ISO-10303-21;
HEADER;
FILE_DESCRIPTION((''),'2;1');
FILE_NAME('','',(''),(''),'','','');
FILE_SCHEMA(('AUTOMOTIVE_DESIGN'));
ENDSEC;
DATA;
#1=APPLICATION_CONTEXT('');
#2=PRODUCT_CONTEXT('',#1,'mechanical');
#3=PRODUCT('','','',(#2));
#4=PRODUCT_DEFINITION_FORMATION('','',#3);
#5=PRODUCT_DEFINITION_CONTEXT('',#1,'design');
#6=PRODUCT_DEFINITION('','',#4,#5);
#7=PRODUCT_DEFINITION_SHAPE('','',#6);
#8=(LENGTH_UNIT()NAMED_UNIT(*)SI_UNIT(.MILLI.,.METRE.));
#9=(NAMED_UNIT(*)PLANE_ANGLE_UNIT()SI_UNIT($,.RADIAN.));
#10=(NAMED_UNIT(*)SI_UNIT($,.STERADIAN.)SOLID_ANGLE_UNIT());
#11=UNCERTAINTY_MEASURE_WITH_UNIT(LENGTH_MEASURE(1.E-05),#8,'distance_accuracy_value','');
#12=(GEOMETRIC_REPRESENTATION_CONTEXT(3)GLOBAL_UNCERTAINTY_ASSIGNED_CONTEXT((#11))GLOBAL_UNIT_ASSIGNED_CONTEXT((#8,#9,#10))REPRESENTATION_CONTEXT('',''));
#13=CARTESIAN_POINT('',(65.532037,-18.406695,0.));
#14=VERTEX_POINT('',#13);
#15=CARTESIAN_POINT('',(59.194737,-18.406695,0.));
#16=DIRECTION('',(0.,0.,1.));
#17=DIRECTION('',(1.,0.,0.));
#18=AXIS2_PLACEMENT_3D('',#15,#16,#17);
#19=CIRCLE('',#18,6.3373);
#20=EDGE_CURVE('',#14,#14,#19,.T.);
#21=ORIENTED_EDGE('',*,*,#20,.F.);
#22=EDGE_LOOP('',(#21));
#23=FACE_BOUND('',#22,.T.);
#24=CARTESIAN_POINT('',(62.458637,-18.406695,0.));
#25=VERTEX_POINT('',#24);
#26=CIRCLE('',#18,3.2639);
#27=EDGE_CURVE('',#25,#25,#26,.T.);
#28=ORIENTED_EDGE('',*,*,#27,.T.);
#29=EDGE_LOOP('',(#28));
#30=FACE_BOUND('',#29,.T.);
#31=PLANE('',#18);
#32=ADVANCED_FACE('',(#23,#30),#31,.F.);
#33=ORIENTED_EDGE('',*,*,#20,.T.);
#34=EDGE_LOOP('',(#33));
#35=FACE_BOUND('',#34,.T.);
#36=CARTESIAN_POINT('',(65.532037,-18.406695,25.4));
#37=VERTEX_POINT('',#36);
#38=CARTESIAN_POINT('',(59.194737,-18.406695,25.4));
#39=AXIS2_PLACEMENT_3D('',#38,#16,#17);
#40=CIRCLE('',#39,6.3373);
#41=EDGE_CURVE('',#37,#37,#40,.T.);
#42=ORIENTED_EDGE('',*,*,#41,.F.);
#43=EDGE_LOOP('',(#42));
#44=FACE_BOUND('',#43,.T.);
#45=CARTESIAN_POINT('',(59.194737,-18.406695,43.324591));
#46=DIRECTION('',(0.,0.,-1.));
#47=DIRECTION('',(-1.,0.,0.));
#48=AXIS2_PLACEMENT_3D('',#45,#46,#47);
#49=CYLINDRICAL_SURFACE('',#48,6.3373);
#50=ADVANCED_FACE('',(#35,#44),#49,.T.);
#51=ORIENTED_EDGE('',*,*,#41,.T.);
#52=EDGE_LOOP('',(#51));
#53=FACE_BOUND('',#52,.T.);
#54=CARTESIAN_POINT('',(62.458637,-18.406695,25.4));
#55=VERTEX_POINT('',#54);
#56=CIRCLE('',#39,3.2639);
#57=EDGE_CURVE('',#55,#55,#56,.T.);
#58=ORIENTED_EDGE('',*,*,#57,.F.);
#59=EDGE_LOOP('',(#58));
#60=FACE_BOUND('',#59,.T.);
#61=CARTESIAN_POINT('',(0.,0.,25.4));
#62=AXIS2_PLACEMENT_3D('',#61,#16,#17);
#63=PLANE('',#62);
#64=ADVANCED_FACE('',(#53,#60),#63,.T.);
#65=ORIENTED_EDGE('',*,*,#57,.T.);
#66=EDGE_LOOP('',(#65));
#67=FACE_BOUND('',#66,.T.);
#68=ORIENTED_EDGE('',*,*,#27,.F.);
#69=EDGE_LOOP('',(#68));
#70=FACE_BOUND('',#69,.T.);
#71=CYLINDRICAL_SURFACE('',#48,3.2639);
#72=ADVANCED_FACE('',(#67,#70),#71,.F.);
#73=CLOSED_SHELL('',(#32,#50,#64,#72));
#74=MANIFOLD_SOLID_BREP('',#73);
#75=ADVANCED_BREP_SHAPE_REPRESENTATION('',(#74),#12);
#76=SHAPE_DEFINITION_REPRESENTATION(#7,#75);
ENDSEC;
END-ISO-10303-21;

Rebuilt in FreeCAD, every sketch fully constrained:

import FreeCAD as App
import Part
import Sketcher

V = App.Vector
Q = App.Units.Quantity

doc = App.newDocument("Part")
params = doc.addObject("Spreadsheet::Sheet", "Params")
for row, (alias, value) in enumerate([
    ("sketch1_diameter", "0.499 in"),
    ("sketch1_diameter2", "0.257 in"),
    ("pad1_length", "1 in"),
], start=1):
    params.set(f"A{row}", alias)
    params.set(f"B{row}", "=" + value)
    params.setAlias(f"B{row}", alias)

body = doc.addObject("PartDesign::Body", "Body")

sketch1 = body.newObject("Sketcher::SketchObject", "Sketch")
sketch1.AttachmentSupport = (doc.getObject("XY_Plane"), [""])
sketch1.MapMode = "FlatFace"
sketch1.addGeometry([
    Part.Circle(V(59.194737, -18.406695, 0), V(0, 0, 1), 6.3373),
    Part.Circle(V(59.194737, -18.406695, 0), V(0, 0, 1), 3.2639),
], False)
sketch1.addConstraint([
    Sketcher.Constraint("Coincident", 1, 3, 0, 3),
    Sketcher.Constraint("Diameter", 0, Q("0.499 in")),
    Sketcher.Constraint("Diameter", 1, Q("0.257 in")),
    Sketcher.Constraint("DistanceX", -1, 1, 0, 3, 59.194737),
    Sketcher.Constraint("DistanceY", 0, 3, -1, 1, 18.406695),
])
sketch1.setExpression("Constraints[1]", "Params.sketch1_diameter")
sketch1.setExpression("Constraints[2]", "Params.sketch1_diameter2")
pad1 = body.newObject("PartDesign::Pad", "Pad")
pad1.Profile = sketch1
pad1.setExpression("Length", "Params.pad1_length")

doc.recompute()
